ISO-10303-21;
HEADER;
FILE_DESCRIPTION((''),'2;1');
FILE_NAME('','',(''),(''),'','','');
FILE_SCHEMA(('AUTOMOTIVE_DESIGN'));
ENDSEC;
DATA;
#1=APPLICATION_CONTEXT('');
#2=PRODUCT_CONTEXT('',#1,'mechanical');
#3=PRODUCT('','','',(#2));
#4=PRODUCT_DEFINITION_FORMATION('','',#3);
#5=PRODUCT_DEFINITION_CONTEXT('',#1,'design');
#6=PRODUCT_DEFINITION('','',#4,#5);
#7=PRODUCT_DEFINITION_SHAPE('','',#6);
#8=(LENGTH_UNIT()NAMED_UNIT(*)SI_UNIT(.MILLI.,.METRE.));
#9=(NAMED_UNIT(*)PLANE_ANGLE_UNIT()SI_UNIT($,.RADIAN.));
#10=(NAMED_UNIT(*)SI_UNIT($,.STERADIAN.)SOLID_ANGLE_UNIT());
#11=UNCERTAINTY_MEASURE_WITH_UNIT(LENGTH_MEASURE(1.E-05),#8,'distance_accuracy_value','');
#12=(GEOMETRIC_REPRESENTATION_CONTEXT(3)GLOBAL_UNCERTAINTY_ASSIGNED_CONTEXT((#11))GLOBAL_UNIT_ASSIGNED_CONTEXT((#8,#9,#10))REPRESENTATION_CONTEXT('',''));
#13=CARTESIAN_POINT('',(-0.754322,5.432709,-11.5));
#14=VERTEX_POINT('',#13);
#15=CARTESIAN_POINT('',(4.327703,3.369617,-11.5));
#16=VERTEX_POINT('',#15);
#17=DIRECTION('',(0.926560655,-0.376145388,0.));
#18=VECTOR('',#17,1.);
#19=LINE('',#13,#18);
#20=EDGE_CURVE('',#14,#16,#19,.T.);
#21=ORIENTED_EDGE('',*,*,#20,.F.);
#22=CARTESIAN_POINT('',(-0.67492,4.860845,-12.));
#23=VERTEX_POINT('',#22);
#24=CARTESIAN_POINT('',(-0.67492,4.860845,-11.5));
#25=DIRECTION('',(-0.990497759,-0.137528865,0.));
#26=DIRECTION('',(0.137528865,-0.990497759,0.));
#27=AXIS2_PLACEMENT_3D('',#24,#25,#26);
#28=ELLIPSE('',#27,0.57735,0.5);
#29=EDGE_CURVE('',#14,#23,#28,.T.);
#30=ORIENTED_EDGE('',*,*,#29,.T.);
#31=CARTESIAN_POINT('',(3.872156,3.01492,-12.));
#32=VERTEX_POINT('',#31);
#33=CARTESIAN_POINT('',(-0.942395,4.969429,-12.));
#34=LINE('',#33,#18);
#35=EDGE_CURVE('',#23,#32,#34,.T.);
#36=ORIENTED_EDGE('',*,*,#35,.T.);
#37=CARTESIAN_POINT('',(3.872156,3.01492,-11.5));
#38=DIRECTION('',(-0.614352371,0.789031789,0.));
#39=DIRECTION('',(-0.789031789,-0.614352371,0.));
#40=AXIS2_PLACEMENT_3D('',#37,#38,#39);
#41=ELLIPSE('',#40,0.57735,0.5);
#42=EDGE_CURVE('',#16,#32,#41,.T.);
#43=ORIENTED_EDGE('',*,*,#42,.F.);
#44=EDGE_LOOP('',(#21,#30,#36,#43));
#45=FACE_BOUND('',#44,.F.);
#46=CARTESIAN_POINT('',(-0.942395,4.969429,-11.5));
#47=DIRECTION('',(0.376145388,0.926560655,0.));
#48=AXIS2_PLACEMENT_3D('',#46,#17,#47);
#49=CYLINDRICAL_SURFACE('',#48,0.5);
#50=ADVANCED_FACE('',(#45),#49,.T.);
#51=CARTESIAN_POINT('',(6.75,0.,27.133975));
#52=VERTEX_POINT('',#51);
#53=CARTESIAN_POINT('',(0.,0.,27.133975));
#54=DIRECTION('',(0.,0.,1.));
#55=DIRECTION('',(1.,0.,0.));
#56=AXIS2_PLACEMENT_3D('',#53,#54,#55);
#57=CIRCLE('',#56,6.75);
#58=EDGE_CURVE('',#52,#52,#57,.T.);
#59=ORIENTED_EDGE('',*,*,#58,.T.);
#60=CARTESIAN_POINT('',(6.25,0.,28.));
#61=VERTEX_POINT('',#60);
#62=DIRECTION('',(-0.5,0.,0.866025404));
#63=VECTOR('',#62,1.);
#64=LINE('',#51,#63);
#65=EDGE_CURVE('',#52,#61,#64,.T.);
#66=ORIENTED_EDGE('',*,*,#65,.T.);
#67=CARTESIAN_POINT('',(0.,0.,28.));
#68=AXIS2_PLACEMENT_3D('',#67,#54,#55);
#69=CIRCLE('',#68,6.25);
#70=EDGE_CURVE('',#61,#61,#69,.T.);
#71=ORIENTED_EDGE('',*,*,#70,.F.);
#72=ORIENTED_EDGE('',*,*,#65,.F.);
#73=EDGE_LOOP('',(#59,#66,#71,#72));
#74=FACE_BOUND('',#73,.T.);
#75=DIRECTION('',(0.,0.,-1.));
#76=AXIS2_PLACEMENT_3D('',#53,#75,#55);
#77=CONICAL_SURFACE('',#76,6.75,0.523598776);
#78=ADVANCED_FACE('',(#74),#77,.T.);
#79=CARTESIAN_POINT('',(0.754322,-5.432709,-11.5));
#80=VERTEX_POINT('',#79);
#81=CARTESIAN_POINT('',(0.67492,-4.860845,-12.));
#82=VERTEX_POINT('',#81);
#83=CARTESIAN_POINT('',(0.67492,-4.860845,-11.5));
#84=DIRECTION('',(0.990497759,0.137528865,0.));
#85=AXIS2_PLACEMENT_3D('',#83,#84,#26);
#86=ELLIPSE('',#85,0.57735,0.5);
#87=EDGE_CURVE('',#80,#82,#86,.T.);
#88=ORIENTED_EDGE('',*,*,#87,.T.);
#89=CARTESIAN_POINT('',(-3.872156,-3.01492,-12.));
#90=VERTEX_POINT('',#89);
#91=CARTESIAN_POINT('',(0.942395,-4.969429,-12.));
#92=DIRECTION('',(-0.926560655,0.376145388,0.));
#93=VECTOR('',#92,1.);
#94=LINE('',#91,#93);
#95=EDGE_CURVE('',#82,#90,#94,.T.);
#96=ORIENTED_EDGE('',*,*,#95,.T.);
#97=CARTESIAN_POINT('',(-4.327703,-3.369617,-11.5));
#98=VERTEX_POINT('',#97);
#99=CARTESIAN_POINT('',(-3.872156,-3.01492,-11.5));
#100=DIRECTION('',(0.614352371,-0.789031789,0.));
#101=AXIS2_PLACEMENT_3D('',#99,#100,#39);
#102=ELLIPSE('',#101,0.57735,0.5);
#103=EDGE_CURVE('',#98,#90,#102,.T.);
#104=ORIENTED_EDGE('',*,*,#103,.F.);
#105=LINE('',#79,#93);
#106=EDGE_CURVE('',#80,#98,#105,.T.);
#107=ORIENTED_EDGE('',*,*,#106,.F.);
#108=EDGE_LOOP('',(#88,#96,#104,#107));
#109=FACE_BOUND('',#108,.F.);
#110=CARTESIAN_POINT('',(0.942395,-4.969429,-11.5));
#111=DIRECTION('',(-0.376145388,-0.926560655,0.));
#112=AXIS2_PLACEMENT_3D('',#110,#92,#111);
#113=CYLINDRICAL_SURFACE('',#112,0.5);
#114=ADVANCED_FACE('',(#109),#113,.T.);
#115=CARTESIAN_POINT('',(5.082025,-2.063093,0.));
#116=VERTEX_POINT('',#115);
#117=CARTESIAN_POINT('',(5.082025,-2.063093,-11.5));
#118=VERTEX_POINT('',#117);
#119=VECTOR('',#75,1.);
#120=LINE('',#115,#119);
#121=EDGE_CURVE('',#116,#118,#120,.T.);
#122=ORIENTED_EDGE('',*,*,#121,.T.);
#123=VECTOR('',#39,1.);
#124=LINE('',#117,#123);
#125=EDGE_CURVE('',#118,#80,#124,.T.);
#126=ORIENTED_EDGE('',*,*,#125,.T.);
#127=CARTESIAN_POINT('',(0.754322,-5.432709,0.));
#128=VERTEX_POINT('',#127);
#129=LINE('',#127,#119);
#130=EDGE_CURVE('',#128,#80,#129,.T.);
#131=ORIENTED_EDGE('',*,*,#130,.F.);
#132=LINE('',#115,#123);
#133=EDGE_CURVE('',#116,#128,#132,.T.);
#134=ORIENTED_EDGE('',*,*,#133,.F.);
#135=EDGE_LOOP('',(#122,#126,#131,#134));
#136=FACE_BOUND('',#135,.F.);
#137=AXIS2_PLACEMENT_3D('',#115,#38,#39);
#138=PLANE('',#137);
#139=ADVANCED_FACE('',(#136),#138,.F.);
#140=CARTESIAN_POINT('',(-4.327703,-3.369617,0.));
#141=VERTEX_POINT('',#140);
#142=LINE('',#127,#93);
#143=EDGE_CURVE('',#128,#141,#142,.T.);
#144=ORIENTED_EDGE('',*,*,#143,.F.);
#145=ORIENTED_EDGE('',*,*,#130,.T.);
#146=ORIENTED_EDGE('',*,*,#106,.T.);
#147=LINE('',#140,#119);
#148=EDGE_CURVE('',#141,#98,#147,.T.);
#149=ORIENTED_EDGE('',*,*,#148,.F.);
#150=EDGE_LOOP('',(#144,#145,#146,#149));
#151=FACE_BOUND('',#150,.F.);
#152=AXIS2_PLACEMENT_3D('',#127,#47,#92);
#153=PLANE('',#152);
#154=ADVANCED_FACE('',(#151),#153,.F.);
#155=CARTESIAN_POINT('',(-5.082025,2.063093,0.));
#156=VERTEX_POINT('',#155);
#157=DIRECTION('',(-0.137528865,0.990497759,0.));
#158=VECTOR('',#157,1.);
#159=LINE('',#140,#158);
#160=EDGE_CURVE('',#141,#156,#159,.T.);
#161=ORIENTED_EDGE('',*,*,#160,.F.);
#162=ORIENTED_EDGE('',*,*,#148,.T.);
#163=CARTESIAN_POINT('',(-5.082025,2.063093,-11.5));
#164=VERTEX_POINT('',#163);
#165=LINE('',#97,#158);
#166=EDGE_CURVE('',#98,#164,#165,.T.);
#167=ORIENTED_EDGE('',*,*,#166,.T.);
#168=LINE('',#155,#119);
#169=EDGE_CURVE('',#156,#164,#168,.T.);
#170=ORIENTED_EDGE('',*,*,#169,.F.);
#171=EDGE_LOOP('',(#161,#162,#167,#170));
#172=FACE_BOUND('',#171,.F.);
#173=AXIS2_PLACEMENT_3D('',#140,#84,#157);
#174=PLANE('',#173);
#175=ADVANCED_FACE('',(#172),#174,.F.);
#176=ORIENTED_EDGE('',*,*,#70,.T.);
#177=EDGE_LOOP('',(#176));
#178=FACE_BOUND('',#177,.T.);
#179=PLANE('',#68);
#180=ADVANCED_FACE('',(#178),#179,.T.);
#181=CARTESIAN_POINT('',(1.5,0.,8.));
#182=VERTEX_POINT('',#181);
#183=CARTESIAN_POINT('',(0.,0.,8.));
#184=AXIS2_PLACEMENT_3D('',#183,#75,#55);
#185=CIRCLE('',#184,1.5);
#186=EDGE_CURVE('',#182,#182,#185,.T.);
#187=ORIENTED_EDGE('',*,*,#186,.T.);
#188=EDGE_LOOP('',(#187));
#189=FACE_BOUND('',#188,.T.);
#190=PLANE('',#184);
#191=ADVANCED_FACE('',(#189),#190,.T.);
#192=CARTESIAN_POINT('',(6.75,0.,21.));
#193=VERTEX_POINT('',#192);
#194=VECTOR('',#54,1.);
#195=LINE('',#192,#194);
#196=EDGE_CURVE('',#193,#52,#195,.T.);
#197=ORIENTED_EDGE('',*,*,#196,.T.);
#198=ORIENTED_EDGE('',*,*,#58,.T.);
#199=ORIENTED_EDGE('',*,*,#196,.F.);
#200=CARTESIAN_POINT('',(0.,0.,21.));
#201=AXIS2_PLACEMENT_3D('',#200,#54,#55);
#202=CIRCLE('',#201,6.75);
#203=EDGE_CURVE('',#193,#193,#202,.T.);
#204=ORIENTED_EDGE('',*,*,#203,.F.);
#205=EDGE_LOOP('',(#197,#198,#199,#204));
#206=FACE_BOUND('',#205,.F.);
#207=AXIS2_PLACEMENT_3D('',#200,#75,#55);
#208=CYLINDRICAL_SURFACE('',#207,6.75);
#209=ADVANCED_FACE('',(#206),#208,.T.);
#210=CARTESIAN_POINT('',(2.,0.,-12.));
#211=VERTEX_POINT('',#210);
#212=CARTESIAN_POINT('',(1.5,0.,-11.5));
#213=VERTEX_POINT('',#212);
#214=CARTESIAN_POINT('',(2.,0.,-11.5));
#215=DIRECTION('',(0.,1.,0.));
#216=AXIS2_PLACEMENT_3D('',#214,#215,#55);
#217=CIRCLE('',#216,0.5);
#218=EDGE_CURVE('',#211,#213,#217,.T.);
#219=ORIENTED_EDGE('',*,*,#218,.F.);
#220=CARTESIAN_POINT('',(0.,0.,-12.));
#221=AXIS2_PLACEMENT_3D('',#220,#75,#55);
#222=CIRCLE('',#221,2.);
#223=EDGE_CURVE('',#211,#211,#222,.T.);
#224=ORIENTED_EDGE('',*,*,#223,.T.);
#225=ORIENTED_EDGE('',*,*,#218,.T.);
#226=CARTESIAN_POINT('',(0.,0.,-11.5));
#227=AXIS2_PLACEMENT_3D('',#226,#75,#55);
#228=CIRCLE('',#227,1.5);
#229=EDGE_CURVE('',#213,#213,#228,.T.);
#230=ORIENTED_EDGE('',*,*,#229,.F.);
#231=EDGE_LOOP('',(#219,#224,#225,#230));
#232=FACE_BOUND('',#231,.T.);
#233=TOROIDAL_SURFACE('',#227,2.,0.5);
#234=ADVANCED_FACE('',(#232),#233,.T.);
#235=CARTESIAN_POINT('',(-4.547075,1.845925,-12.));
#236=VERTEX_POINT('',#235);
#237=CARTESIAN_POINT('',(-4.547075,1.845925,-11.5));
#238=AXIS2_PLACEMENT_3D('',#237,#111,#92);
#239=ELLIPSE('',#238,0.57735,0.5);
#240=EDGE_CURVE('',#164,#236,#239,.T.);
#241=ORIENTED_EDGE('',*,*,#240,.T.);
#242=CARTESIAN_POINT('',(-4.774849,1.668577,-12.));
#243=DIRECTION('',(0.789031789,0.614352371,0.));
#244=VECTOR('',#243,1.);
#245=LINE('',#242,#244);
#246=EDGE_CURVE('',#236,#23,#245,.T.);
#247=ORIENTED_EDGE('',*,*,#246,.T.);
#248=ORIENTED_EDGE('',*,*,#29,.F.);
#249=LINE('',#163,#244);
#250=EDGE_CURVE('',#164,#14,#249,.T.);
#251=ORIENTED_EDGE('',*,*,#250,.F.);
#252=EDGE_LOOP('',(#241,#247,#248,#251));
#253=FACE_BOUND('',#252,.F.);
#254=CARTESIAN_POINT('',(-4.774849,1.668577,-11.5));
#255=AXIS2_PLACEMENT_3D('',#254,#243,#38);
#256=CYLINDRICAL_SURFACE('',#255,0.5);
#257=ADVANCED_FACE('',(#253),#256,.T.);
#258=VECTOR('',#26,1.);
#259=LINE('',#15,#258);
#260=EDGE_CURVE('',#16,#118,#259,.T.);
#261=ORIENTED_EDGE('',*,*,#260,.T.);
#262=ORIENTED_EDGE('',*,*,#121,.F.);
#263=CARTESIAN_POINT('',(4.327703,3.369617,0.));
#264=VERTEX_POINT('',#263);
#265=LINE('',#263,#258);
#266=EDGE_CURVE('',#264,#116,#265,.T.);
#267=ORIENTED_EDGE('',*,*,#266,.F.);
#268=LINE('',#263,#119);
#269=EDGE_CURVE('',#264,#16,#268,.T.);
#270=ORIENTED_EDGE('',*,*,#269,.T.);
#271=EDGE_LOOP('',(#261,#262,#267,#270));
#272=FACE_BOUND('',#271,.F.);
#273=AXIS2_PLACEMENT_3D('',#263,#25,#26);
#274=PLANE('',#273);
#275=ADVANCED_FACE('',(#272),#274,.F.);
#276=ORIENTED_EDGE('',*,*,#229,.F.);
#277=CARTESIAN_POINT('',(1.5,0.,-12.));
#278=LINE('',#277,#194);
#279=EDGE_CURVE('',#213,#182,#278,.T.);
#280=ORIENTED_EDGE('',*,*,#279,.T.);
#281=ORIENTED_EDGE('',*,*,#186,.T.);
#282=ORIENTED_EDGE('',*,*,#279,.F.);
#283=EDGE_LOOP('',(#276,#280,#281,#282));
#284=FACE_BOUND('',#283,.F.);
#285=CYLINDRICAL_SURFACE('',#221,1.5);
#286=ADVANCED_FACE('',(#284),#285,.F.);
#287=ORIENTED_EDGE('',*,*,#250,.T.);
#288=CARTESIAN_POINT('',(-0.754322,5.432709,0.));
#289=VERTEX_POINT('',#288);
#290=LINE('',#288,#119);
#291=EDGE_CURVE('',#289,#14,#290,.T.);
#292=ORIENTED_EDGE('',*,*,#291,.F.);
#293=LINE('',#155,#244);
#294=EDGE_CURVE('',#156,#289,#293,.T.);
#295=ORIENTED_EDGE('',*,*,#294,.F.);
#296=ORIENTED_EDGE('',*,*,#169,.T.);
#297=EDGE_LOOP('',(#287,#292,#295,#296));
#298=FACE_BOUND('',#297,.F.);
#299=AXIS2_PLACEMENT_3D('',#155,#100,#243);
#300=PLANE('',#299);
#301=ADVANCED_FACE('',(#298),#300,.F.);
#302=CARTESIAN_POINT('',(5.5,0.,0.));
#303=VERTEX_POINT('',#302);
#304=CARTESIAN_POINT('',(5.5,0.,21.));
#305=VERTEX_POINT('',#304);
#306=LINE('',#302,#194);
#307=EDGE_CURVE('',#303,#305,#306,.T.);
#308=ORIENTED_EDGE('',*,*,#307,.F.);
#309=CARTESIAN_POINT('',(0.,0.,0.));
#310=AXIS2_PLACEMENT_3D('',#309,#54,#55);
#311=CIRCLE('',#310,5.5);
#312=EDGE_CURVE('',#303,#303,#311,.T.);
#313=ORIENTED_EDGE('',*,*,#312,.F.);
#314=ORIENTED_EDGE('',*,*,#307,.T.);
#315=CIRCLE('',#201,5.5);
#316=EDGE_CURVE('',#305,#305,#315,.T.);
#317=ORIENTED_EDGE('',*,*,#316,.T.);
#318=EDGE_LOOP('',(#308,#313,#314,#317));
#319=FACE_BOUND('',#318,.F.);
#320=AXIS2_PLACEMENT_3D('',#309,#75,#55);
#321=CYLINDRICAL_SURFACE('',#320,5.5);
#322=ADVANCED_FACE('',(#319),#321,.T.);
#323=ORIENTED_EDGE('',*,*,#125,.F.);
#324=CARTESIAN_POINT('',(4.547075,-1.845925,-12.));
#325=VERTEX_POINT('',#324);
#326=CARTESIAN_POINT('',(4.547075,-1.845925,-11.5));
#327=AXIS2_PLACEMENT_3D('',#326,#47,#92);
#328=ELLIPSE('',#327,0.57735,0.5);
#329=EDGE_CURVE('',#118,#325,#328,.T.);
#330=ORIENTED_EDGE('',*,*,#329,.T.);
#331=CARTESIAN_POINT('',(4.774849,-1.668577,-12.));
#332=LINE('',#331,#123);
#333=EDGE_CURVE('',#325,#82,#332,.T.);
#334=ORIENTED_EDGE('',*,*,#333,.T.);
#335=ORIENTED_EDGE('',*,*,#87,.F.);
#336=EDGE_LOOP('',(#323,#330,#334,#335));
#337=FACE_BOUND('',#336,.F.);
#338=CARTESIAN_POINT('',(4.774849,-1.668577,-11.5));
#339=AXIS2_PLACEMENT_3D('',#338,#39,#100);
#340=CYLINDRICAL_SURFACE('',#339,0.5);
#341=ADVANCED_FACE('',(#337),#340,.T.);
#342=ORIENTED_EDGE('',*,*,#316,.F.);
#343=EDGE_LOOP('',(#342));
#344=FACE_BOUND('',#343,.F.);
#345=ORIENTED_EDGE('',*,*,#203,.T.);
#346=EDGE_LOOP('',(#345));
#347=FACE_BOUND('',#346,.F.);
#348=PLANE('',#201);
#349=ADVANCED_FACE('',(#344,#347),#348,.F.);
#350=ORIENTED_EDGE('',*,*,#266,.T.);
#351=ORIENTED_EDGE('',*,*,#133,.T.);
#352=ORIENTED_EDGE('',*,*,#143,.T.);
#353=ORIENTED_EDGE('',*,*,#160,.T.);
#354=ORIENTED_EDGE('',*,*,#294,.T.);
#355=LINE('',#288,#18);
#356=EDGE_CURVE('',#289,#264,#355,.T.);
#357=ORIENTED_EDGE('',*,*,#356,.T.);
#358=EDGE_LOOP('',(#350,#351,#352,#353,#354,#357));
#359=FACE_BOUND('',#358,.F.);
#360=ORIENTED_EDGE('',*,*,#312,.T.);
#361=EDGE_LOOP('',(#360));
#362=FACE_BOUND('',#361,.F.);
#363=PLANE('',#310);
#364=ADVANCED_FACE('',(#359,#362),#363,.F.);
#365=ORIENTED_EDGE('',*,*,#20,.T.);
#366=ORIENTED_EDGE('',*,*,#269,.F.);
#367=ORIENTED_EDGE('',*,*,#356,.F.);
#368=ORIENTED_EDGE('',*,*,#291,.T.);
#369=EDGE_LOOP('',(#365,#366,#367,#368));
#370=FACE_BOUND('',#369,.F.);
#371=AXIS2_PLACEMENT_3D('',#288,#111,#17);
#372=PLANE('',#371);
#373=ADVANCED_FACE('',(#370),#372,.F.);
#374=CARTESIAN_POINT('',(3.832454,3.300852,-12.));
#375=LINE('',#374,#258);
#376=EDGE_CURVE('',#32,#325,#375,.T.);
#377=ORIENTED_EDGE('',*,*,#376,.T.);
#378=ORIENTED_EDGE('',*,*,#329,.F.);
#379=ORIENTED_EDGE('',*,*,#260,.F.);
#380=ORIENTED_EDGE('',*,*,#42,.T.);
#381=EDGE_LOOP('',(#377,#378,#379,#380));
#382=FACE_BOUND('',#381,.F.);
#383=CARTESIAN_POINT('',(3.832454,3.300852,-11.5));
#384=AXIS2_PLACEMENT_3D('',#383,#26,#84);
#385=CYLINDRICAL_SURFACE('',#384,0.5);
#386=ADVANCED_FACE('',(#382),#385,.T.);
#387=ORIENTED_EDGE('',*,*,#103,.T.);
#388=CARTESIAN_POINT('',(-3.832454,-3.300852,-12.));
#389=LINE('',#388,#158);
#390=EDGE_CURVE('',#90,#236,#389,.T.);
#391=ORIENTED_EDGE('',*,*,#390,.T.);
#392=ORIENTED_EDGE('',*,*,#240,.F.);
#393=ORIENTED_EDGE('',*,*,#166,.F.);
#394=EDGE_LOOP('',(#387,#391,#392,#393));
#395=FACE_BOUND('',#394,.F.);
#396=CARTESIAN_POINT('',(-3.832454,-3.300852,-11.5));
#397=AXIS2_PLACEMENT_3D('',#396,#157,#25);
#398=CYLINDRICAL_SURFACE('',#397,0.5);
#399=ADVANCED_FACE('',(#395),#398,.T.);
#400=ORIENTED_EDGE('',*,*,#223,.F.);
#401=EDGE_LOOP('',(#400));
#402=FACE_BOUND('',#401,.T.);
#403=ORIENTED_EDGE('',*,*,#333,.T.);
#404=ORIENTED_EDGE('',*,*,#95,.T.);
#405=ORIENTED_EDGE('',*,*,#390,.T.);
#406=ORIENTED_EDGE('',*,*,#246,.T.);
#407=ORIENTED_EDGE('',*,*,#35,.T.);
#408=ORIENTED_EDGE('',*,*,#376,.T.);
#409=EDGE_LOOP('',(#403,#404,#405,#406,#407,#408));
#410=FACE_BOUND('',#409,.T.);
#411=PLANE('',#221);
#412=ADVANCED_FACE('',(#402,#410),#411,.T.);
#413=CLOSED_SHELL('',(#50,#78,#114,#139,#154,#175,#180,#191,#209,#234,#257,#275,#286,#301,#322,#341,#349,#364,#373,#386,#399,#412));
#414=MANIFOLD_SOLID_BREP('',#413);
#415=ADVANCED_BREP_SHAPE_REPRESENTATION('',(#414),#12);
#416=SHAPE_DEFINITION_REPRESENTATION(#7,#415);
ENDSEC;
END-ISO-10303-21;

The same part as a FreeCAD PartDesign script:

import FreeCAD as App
import Part
import Sketcher
Q = App.Units.Quantity


def edges_at(feature, points):
    """Names of the edges that pass closest to the given points."""
    edges = feature.Shape.Edges
    near = lambda p: min(range(len(edges)), key=lambda i: edges[i].distToShape(Part.Vertex(*p))[0])
    return sorted({f"Edge{near(p) + 1}" for p in points})

doc = App.newDocument("Part")
body = doc.addObject("PartDesign::Body", "Body")

sketch1 = body.newObject("Sketcher::SketchObject", "Sketch")
sketch1.AttachmentSupport = (doc.getObject("XY_Plane"), [""])
sketch1.MapMode = "FlatFace"
sketch1.addGeometry(Part.Circle(App.Vector(0, 0, 0), App.Vector(0, 0, 1), 6), False)
sketch1.addConstraint([
    Sketcher.Constraint("Coincident", 0, 3, -1, 1),
    Sketcher.Constraint("Diameter", 0, Q("11 mm")),
])
pad1 = body.newObject("PartDesign::Pad", "Pad")
pad1.Profile = sketch1
pad1.Length = 21

sketch2 = body.newObject("Sketcher::SketchObject", "Sketch001")
sketch2.AttachmentSupport = (doc.getObject("XY_Plane"), [""])
sketch2.MapMode = "FlatFace"
sketch2.AttachmentOffset = App.Placement(App.Vector(0, 0, 21), App.Rotation())
sketch2.addGeometry(Part.Circle(App.Vector(0, 0, 0), App.Vector(0, 0, 1), 7), False)
sketch2.addConstraint([
    Sketcher.Constraint("Coincident", 0, 3, -1, 1),
    Sketcher.Constraint("Diameter", 0, Q("13.5 mm")),
])
pad2 = body.newObject("PartDesign::Pad", "Pad001")
pad2.Profile = sketch2
pad2.Length = 7

sketch3 = body.newObject("Sketcher::SketchObject", "Sketch002")
sketch3.AttachmentSupport = (doc.getObject("XY_Plane"), [""])
sketch3.MapMode = "FlatFace"
sketch3.addGeometry([
    Part.LineSegment(App.Vector(1, -5, 0), App.Vector(-4, -3, 0)),
    Part.LineSegment(App.Vector(-4, -3, 0), App.Vector(-5, 2, 0)),
    Part.LineSegment(App.Vector(-5, 2, 0), App.Vector(-1, 5, 0)),
    Part.LineSegment(App.Vector(-1, 5, 0), App.Vector(4, 3, 0)),
    Part.LineSegment(App.Vector(4, 3, 0), App.Vector(5, -2, 0)),
    Part.LineSegment(App.Vector(5, -2, 0), App.Vector(1, -5, 0)),
], False)
sketch3.addConstraint([
    Sketcher.Constraint("Coincident", 0, 2, 1, 1),
    Sketcher.Constraint("Coincident", 1, 2, 2, 1),
    Sketcher.Constraint("Coincident", 2, 2, 3, 1),
    Sketcher.Constraint("Coincident", 3, 2, 4, 1),
    Sketcher.Constraint("Coincident", 4, 2, 5, 1),
    Sketcher.Constraint("Coincident", 5, 2, 0, 1),
    Sketcher.Constraint("Symmetric", 0, 2, 3, 2, -1, 1),
    Sketcher.Constraint("Symmetric", 1, 2, 4, 2, -1, 1),
    Sketcher.Constraint("Symmetric", 2, 2, 5, 2, -1, 1),
    Sketcher.Constraint("Equal", 0, 1),
    Sketcher.Constraint("Equal", 1, 2),
    Sketcher.Constraint("DistanceY", 4, 2, 2, 2, Q("7.495802 mm")),
    Sketcher.Constraint("DistanceY", -1, 1, 2, 2, Q("5.432709 mm")),
    Sketcher.Constraint("DistanceY", 0, 2, 1, 2, Q("5.432709 mm")),
    Sketcher.Constraint("DistanceX", 0, 2, 2, 2, Q("3.573381 mm")),
])
pad3 = body.newObject("PartDesign::Pad", "Pad002")
pad3.Profile = sketch3
pad3.Length = 12
pad3.Reversed = True

sketch4 = body.newObject("Sketcher::SketchObject", "Sketch003")
sketch4.AttachmentSupport = (doc.getObject("XY_Plane"), [""])
sketch4.MapMode = "FlatFace"
sketch4.AttachmentOffset = App.Placement(App.Vector(0, 0, -12), App.Rotation())
sketch4.addGeometry(Part.Circle(App.Vector(0, 0, 0), App.Vector(0, 0, 1), 1.5), False)
sketch4.addConstraint([
    Sketcher.Constraint("Coincident", 0, 3, -1, 1),
    Sketcher.Constraint("Diameter", 0, Q("3 mm")),
])
pocket1 = body.newObject("PartDesign::Pocket", "Pocket")
pocket1.Profile = sketch4
pocket1.Length = 20
pocket1.Reversed = True
doc.recompute()

fillet = body.newObject("PartDesign::Fillet", "Fillet")
fillet.Base = (pocket1, edges_at(pocket1, [
    (2.918, -3.748, -12),
    (4.705, 0.653, -12),
    (-1.787, -4.401, -12),
    (1.787, 4.401, -12),
    (-4.705, -0.653, -12),
    (-2.918, 3.748, -12),
    (-1.5, 0, -12),
]))
fillet.Radius = 0.5
doc.recompute()

chamfer = body.newObject("PartDesign::Chamfer", "Chamfer")
chamfer.Base = (fillet, edges_at(fillet, [(-6.75, 0, 28)]))
chamfer.ChamferType = "Two distances"
chamfer.Size = 0.866025
chamfer.Size2 = 0.5

doc.recompute()
